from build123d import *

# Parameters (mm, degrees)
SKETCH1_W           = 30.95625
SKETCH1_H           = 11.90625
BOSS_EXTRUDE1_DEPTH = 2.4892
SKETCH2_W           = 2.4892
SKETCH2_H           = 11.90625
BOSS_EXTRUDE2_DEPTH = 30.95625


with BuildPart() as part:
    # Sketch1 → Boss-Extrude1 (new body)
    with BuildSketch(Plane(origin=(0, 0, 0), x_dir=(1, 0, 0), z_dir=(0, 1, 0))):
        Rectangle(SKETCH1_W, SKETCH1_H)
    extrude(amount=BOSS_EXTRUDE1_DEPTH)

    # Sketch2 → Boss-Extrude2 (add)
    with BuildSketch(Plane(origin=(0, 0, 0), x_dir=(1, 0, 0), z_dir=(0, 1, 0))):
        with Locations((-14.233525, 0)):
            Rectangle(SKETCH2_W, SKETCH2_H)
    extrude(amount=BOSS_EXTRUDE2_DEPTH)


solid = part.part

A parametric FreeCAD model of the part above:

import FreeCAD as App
import Part
import Sketcher

V = App.Vector
Q = App.Units.Quantity


def add_polygon(sketch, points):
    """Adds a closed chain of lines whose ends are joined by coincident constraints."""
    first, n = sketch.GeometryCount, len(points)
    for a, b in zip(points, points[1:] + points[:1]):
        sketch.addGeometry(Part.LineSegment(App.Vector(*a, 0), App.Vector(*b, 0)), False)
    for i in range(n):
        sketch.addConstraint(Sketcher.Constraint("Coincident", first + i, 2, first + (i + 1) % n, 1))

doc = App.newDocument("Part")
body = doc.addObject("PartDesign::Body", "Body")

# Sketch on XZ plane
sketch1 = body.newObject("Sketcher::SketchObject", "Sketch")
sketch1.AttachmentSupport = (doc.getObject("XZ_Plane"), [""])
sketch1.MapMode = "FlatFace"
add_polygon(sketch1, [(-15, -6), (-15, 6), (15, 6), (15, -6)])  # lines 0-3
sketch1.addConstraint([
    Sketcher.Constraint("Vertical", 0),
    Sketcher.Constraint("Horizontal", 1),
    Sketcher.Constraint("Vertical", 2),
    Sketcher.Constraint("Horizontal", 3),
    Sketcher.Constraint("Symmetric", 0, 2, 2, 2, -1, 1),
    Sketcher.Constraint("DistanceX", 1, 1, 1, 2, Q("1.21875 in")),
    Sketcher.Constraint("DistanceY", 0, 1, 0, 2, Q("0.46875 in")),
])
pad1 = body.newObject("PartDesign::Pad", "Pad")
pad1.Profile = sketch1
pad1.Length = Q("0.098 in")
pad1.Reversed = True

# Sketch on XZ plane
sketch2 = body.newObject("Sketcher::SketchObject", "Sketch001")
sketch2.AttachmentSupport = (doc.getObject("XZ_Plane"), [""])
sketch2.MapMode = "FlatFace"
add_polygon(sketch2, [(-15.5, -6), (-15.5, 6), (-13, 6), (-13, -6)])  # lines 0-3
sketch2.addConstraint([
    Sketcher.Constraint("Vertical", 0),
    Sketcher.Constraint("Horizontal", 1),
    Sketcher.Constraint("Vertical", 2),
    Sketcher.Constraint("Horizontal", 3),
    Sketcher.Constraint("DistanceX", 1, 1, 1, 2, Q("0.098 in")),
    Sketcher.Constraint("DistanceY", 0, 1, 0, 2, Q("0.46875 in")),
    Sketcher.Constraint("DistanceX", 0, 2, -1, 1, Q("0.609375 in")),
    Sketcher.Constraint("DistanceY", -1, 1, 0, 2, Q("0.234375 in")),
])
pad2 = body.newObject("PartDesign::Pad", "Pad001")
pad2.Profile = sketch2
pad2.Length = Q("1.21875 in")
pad2.Reversed = True

doc.recompute()
